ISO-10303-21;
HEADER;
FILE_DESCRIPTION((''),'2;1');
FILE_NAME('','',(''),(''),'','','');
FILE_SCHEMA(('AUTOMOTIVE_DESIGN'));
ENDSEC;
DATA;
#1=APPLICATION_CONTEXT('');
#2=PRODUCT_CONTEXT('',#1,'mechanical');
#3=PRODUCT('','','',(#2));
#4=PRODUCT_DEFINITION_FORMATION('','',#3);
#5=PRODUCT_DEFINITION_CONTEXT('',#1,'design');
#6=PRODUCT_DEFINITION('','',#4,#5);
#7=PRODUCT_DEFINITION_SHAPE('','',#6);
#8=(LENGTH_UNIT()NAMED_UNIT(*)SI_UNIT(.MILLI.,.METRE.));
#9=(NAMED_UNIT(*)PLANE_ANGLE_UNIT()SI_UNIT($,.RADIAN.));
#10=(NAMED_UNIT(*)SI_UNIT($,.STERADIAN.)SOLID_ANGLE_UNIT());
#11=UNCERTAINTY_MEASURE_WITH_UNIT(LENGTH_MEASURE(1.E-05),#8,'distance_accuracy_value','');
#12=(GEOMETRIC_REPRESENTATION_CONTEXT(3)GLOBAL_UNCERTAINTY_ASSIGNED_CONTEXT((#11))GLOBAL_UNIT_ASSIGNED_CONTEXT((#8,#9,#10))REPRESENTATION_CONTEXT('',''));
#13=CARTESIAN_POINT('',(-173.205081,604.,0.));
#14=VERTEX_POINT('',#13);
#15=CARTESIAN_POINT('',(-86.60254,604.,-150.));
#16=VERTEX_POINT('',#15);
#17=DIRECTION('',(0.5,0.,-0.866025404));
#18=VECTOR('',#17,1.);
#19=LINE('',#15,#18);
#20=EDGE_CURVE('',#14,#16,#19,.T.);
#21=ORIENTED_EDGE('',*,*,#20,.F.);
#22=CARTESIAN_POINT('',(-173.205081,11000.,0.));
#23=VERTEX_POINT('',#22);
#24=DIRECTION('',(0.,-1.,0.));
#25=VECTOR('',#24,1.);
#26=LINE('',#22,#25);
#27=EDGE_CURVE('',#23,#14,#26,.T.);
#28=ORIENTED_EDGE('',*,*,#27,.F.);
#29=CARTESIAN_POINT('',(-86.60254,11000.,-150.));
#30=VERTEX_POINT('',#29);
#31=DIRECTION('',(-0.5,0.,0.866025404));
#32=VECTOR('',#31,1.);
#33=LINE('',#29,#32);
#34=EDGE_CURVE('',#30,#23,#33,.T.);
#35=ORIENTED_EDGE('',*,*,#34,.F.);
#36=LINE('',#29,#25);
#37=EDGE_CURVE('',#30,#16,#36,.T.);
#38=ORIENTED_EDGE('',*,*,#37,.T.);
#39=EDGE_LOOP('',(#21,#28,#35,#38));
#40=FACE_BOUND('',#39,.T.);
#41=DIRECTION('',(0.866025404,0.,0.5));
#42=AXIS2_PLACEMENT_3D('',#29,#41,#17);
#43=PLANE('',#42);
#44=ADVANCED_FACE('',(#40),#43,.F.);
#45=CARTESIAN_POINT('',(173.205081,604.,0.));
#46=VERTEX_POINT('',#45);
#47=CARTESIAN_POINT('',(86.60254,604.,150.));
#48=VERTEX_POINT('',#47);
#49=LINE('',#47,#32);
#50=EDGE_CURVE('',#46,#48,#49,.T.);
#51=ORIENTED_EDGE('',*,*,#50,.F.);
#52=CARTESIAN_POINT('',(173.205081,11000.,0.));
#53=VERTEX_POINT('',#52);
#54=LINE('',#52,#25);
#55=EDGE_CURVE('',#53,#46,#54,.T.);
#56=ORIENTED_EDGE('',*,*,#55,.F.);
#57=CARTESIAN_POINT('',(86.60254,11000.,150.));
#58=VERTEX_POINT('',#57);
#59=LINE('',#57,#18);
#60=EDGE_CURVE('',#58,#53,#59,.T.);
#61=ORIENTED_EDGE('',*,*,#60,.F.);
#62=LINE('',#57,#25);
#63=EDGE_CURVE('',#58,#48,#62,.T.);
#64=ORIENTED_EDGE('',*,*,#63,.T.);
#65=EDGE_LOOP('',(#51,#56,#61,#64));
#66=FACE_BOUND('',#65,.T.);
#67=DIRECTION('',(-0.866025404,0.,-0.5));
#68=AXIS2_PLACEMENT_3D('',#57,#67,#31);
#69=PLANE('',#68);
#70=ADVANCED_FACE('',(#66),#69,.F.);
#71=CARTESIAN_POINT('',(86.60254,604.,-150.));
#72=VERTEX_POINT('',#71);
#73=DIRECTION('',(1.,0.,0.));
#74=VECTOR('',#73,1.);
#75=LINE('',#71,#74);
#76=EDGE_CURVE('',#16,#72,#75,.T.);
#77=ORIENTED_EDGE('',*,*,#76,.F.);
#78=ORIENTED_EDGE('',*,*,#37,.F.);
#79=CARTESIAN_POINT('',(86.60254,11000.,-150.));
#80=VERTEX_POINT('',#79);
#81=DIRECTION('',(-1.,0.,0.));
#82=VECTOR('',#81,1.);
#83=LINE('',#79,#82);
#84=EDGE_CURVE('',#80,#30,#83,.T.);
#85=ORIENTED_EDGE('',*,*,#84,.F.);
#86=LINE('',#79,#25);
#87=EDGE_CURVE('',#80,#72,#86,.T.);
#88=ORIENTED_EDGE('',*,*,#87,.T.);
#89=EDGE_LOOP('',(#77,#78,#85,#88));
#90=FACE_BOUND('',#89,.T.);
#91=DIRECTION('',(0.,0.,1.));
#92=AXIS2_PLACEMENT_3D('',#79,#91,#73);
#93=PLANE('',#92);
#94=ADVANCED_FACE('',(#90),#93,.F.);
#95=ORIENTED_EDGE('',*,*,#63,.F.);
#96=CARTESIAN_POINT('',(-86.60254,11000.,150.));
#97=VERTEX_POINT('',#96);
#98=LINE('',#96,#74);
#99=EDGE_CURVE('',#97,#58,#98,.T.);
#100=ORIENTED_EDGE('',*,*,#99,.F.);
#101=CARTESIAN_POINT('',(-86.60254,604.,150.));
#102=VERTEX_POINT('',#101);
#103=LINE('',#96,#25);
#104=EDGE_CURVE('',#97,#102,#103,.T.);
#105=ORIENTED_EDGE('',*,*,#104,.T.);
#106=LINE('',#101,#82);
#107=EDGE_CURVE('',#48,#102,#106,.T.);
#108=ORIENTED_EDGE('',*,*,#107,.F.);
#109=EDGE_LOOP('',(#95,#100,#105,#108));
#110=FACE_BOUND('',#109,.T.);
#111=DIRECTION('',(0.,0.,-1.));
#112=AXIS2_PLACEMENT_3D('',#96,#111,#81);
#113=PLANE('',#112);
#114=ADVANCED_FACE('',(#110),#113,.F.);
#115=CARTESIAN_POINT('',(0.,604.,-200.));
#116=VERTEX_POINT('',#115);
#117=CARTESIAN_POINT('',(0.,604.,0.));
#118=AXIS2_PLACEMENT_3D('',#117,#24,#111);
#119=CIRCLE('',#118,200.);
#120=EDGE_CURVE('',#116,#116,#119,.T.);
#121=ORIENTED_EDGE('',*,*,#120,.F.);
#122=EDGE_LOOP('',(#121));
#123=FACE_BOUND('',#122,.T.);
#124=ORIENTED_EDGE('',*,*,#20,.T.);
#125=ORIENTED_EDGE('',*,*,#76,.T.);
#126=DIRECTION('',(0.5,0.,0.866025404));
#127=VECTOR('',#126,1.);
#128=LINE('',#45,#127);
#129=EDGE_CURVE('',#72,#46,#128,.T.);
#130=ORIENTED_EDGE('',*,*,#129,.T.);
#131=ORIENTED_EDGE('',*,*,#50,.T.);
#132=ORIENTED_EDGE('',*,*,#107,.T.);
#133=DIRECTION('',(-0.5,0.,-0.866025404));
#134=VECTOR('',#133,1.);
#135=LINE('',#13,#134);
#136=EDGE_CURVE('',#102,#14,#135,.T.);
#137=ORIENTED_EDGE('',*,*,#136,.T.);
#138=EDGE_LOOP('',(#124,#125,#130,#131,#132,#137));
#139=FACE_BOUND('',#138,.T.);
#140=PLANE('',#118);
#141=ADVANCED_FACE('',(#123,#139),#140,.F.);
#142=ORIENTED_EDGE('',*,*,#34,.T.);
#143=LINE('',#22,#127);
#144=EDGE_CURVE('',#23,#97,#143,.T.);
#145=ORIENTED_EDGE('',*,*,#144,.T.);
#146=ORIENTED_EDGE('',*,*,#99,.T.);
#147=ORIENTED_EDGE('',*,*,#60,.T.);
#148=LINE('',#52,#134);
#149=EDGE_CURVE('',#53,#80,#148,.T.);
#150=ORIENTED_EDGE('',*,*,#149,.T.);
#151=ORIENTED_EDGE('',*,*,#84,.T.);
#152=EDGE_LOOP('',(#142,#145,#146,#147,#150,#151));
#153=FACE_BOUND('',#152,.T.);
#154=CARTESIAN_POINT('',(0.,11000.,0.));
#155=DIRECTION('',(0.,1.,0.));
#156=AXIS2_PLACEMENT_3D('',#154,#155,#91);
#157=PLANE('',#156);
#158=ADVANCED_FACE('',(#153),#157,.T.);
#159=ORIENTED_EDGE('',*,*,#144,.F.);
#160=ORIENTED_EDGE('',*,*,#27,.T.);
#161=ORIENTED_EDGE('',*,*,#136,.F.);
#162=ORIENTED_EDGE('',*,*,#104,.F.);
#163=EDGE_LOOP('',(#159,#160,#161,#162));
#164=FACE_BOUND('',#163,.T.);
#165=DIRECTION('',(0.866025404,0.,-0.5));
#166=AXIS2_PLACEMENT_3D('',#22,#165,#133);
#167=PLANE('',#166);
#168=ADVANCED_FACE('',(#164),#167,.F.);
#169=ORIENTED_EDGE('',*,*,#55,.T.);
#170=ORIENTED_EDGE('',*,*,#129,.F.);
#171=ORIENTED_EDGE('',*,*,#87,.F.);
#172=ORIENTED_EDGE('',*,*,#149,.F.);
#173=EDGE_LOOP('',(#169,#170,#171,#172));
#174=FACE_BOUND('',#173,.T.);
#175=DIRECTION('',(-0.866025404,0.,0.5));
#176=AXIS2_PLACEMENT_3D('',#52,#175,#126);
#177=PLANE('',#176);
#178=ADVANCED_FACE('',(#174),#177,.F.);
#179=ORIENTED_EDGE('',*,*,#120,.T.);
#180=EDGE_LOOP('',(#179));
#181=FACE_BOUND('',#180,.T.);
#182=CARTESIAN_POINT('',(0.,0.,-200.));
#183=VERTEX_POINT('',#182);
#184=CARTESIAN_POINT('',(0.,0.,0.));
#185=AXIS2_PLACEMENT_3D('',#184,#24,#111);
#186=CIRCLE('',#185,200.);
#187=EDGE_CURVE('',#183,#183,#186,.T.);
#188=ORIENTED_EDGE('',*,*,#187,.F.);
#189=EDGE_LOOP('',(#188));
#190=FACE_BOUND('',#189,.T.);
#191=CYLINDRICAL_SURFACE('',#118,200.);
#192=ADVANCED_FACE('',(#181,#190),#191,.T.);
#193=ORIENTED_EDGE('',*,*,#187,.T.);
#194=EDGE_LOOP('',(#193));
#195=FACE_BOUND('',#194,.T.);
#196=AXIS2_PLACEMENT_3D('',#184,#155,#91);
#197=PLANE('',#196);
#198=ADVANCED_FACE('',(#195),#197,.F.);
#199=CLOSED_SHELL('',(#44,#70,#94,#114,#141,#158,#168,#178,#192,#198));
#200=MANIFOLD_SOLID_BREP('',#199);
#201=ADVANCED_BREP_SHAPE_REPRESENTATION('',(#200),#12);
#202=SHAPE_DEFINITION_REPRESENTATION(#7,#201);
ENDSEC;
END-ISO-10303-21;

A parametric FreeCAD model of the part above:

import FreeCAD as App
import Part
import Sketcher
Q = App.Units.Quantity


def add_polygon(sketch, points):
    """Adds a closed chain of lines whose ends are joined by coincident constraints."""
    first, n = sketch.GeometryCount, len(points)
    for a, b in zip(points, points[1:] + points[:1]):
        sketch.addGeometry(Part.LineSegment(App.Vector(*a, 0), App.Vector(*b, 0)), False)
    for i in range(n):
        sketch.addConstraint(Sketcher.Constraint("Coincident", first + i, 2, first + (i + 1) % n, 1))

doc = App.newDocument("Part")
body = doc.addObject("PartDesign::Body", "Body")

sketch1 = body.newObject("Sketcher::SketchObject", "Sketch")
sketch1.AttachmentSupport = (doc.getObject("XZ_Plane"), [""])
sketch1.MapMode = "FlatFace"
add_polygon(sketch1, [(173, 0), (87, -150), (-87, -150), (-173, 0), (-87, 150), (87, 150)])
sketch1.addConstraint([
    Sketcher.Constraint("Horizontal", 1),
    Sketcher.Constraint("Horizontal", 4),
    Sketcher.Constraint("Symmetric", 0, 2, 3, 2, -1, 1),
    Sketcher.Constraint("Symmetric", 2, 2, 5, 2, -1, 1),
    Sketcher.Constraint("PointOnObject", 2, 2, -1),
    Sketcher.Constraint("Parallel", 2, 5),
    Sketcher.Constraint("Vertical", 1, 2, 3, 2),
    Sketcher.Constraint("Angle", 0, Q("-120 deg")),
    Sketcher.Constraint("DistanceY", 0, 2, -1, 1, 150.0),
    Sketcher.Constraint("DistanceX", 1, 2, 1, 1, 173.205081),
])
pad1 = body.newObject("PartDesign::Pad", "Pad")
pad1.Profile = sketch1
pad1.Length = 11000
pad1.Reversed = True

sketch2 = body.newObject("Sketcher::SketchObject", "Sketch001")
sketch2.AttachmentSupport = (doc.getObject("XZ_Plane"), [""])
sketch2.MapMode = "FlatFace"
sketch2.addGeometry(Part.Circle(App.Vector(0, 0, 0), App.Vector(0, 0, 1), 200), False)
sketch2.addConstraint([
    Sketcher.Constraint("Coincident", 0, 3, -1, 1),
    Sketcher.Constraint("Diameter", 0, 400.0),
])
pad2 = body.newObject("PartDesign::Pad", "Pad001")
pad2.Profile = sketch2
pad2.Length = 604
pad2.Reversed = True

doc.recompute()
